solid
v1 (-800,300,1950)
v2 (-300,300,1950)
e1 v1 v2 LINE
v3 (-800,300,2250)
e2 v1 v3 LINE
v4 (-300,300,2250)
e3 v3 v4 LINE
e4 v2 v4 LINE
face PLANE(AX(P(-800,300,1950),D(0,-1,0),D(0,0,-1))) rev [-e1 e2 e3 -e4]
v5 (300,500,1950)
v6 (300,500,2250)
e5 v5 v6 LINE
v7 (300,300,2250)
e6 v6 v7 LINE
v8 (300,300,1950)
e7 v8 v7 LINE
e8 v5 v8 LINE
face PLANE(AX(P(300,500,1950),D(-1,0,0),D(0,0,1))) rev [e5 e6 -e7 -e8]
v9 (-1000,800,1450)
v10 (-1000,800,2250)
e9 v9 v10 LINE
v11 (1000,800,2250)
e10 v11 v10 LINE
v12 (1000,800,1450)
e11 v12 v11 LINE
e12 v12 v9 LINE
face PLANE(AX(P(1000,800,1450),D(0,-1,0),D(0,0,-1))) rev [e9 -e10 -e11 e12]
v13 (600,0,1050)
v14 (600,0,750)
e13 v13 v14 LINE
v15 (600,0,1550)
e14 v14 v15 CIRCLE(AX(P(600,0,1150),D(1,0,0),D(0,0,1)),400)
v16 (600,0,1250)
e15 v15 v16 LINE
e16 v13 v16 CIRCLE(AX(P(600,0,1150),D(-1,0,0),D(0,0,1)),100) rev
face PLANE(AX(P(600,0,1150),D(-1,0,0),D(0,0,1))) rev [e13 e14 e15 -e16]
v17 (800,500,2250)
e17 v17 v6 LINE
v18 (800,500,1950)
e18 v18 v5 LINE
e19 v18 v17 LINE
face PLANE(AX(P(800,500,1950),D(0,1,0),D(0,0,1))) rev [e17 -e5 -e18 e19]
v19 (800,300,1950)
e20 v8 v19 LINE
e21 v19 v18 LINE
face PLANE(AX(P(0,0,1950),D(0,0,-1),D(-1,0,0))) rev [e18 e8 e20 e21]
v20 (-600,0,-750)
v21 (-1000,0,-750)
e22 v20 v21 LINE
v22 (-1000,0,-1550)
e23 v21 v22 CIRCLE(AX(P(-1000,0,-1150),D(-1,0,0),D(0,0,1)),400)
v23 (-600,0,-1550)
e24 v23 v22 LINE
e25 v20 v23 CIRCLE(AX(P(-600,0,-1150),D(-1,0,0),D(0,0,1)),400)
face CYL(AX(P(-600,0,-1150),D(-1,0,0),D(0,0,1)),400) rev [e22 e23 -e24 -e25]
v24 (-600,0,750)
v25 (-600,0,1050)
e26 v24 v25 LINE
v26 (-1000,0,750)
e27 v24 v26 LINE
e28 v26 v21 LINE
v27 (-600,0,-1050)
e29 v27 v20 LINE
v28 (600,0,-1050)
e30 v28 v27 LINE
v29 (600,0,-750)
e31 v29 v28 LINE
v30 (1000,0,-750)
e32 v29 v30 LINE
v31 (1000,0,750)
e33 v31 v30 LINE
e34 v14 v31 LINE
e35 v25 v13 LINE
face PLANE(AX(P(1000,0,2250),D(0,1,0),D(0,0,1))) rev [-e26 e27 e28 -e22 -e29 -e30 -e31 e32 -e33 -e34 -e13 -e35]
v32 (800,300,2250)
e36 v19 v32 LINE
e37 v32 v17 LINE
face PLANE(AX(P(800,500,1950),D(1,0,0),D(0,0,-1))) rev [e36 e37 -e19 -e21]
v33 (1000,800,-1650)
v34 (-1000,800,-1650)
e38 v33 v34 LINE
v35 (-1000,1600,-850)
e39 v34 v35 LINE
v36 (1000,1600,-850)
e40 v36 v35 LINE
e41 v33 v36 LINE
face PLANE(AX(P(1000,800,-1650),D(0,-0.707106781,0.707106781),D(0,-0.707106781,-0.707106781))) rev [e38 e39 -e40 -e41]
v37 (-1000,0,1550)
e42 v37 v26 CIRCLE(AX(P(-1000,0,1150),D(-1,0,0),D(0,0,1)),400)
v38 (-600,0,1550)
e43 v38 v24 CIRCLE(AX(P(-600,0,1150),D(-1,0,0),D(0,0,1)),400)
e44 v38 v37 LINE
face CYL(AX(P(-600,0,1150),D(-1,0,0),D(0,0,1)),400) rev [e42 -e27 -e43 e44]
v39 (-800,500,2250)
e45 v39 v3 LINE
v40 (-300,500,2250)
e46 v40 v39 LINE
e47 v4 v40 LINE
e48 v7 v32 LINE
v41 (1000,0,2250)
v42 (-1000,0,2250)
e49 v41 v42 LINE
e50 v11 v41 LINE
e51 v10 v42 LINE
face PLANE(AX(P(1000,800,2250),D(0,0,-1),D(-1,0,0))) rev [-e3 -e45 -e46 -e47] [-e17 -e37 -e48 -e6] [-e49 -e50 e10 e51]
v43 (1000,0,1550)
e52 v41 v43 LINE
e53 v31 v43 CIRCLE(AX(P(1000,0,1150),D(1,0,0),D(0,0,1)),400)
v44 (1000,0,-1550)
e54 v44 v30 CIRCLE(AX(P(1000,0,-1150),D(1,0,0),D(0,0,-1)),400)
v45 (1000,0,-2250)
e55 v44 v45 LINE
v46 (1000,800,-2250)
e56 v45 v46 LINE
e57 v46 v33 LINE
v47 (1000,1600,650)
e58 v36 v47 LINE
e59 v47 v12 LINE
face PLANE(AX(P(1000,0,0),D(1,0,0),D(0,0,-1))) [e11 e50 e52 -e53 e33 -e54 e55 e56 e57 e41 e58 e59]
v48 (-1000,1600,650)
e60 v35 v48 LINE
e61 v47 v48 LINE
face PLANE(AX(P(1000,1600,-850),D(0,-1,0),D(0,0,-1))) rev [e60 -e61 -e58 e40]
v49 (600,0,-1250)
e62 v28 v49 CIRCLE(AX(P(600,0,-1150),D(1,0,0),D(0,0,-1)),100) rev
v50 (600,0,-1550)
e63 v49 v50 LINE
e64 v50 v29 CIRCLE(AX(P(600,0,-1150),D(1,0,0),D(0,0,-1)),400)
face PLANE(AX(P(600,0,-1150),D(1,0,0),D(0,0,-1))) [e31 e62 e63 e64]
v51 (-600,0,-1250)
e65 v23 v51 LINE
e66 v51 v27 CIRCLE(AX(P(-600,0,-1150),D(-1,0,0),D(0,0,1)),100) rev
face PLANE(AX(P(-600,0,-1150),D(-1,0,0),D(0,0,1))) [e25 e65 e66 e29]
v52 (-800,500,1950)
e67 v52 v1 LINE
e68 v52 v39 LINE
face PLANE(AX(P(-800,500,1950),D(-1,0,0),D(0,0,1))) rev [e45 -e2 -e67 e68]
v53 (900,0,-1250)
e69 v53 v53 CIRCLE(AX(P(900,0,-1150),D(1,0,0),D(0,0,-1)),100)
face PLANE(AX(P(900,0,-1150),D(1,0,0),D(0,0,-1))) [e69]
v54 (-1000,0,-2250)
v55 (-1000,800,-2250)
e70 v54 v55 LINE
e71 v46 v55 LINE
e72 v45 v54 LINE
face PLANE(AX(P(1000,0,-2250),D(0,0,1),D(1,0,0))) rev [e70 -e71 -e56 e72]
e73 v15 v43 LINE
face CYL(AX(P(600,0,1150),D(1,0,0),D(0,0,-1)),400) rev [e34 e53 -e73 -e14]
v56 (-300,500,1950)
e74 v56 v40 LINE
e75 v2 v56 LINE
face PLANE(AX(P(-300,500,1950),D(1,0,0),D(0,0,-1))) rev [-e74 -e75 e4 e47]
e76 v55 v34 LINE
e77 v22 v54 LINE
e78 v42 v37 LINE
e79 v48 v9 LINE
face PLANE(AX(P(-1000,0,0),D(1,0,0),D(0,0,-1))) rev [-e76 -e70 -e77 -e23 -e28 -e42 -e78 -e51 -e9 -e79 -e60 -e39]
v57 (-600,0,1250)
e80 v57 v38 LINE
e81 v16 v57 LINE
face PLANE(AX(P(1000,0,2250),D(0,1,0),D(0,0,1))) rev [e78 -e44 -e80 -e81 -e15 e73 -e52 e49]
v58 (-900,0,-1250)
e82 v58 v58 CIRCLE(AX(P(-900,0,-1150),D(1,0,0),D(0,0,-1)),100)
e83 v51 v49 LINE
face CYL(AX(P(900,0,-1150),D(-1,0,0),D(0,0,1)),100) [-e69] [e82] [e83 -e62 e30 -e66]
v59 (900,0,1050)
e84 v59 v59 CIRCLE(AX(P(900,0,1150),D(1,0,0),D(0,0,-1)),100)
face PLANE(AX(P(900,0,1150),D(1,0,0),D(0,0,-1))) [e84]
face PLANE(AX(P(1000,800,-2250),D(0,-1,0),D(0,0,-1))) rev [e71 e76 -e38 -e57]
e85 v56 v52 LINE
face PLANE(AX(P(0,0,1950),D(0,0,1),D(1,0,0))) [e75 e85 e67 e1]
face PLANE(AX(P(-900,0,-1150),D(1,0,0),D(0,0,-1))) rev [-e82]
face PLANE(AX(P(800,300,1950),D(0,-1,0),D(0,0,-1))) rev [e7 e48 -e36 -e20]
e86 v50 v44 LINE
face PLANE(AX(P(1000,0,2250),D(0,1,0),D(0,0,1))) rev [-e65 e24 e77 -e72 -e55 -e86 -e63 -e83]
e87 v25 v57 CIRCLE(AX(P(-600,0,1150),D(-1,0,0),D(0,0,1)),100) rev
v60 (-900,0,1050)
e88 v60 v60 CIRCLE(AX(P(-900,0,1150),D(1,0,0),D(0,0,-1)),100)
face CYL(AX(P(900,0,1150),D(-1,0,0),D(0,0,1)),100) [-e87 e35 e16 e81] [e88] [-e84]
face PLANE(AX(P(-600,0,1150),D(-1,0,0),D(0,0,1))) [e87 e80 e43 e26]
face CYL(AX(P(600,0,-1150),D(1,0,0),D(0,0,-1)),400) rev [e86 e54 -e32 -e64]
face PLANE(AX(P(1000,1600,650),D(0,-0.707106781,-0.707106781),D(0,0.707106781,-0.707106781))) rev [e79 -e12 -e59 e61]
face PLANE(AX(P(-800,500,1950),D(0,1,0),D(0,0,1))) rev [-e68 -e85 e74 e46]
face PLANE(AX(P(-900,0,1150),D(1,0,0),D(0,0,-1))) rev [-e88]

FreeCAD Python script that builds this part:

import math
import FreeCAD as App
import Part
import Sketcher

doc = App.newDocument("Part")
body = doc.addObject("PartDesign::Body", "Body")

# Sketch on YZ plane
sketch1 = body.newObject("Sketcher::SketchObject", "Sketch")
sketch1.AttachmentSupport = (doc.getObject("YZ_Plane"), [""])
sketch1.MapMode = "FlatFace"
sketch1.addGeometry([
    Part.LineSegment(App.Vector(0, -2250, 0), App.Vector(800, -2250, 0)),  # 0
    Part.LineSegment(App.Vector(800, -2250, 0), App.Vector(800, -1650, 0)),  # 1
    Part.LineSegment(App.Vector(800, -1650, 0), App.Vector(1600, -850, 0)),  # 2
    Part.LineSegment(App.Vector(1600, -850, 0), App.Vector(1600, 650, 0)),  # 3
    Part.LineSegment(App.Vector(1600, 650, 0), App.Vector(800, 1450, 0)),  # 4
    Part.LineSegment(App.Vector(800, 1450, 0), App.Vector(800, 2250, 0)),  # 5
    Part.LineSegment(App.Vector(800, 2250, 0), App.Vector(0, 2250, 0)),  # 6
    Part.LineSegment(App.Vector(0, 2250, 0), App.Vector(0, -2250, 0)),  # 7
], False)
sketch1.addConstraint([
    Sketcher.Constraint("Coincident", 0, 2, 1, 1),
    Sketcher.Constraint("Coincident", 1, 2, 2, 1),
    Sketcher.Constraint("Coincident", 2, 2, 3, 1),
    Sketcher.Constraint("Coincident", 3, 2, 4, 1),
    Sketcher.Constraint("Coincident", 4, 2, 5, 1),
    Sketcher.Constraint("Coincident", 5, 2, 6, 1),
    Sketcher.Constraint("Coincident", 6, 2, 7, 1),
    Sketcher.Constraint("Coincident", 7, 2, 0, 1),
    Sketcher.Constraint("Horizontal", 0),
    Sketcher.Constraint("Vertical", 1),
    Sketcher.Constraint("Vertical", 3),
    Sketcher.Constraint("Vertical", 5),
    Sketcher.Constraint("Horizontal", 6),
    Sketcher.Constraint("Vertical", 7),
    Sketcher.Constraint("Symmetric", 6, 2, 7, 2, -1, 1),
    Sketcher.Constraint("Perpendicular", 2, 4),
    Sketcher.Constraint("Vertical", 1, 2, 4, 2),
    Sketcher.Constraint("Equal", 6, 5),
    Sketcher.Constraint("Equal", 2, 4),
    Sketcher.Constraint("DistanceX", 0, 1, 0, 2, 800.0),
    Sketcher.Constraint("DistanceY", 1, 1, 1, 2, 600.0),
    Sketcher.Constraint("DistanceY", 3, 1, 3, 2, 1500.0),
    Sketcher.Constraint("DistanceY", 7, 2, 7, 1, 4500.0),
])
pad1 = body.newObject("PartDesign::Pad", "Pad")
pad1.Profile = sketch1
pad1.Length = 2000
pad1.Midplane = True

# Sketch on YZ plane
sketch2 = body.newObject("Sketcher::SketchObject", "Sketch001")
sketch2.AttachmentSupport = (doc.getObject("YZ_Plane"), [""])
sketch2.MapMode = "FlatFace"
sketch2.AttachmentOffset = App.Placement(App.Vector(0, 0, 1000), App.Rotation())
sketch2.addGeometry([
    Part.LineSegment(App.Vector(0, 1550, 0), App.Vector(0, 750, 0)),
    Part.ArcOfCircle(Part.Circle(App.Vector(0, 1150, 0), App.Vector(0, 0, 1), 400), math.radians(-90), math.radians(90)),
    Part.LineSegment(App.Vector(0, -750, 0), App.Vector(0, -1550, 0)),
    Part.ArcOfCircle(Part.Circle(App.Vector(0, -1150, 0), App.Vector(0, 0, 1), 400), math.radians(-90), math.radians(90)),
], False)
sketch2.addConstraint([
    Sketcher.Constraint("Coincident", 0, 1, 1, 2),
    Sketcher.Constraint("Coincident", 1, 1, 0, 2),
    Sketcher.Constraint("Coincident", 2, 1, 3, 2),
    Sketcher.Constraint("Coincident", 3, 1, 2, 2),
    Sketcher.Constraint("Vertical", 0),
    Sketcher.Constraint("Vertical", 2),
    Sketcher.Constraint("Equal", 1, 3),
    Sketcher.Constraint("Symmetric", 1, 3, 3, 3, -1, 1),
    Sketcher.Constraint("PointOnObject", 1, 3, -2),
    Sketcher.Constraint("PointOnObject", 0, 1, -2),
    Sketcher.Constraint("PointOnObject", 2, 1, -2),
    Sketcher.Constraint("Radius", 1, 400.0),
    Sketcher.Constraint("DistanceY", -1, 1, 1, 3, 1150.0),
])
pocket1 = body.newObject("PartDesign::Pocket", "Pocket")
pocket1.Profile = sketch2
pocket1.Length = 400

# Sketch on YZ plane
sketch3 = body.newObject("Sketcher::SketchObject", "Sketch002")
sketch3.AttachmentSupport = (doc.getObject("YZ_Plane"), [""])
sketch3.MapMode = "FlatFace"
sketch3.AttachmentOffset = App.Placement(App.Vector(0, 0, -600), App.Rotation())
sketch3.addGeometry([
    Part.LineSegment(App.Vector(0, -1550, 0), App.Vector(0, -750, 0)),
    Part.ArcOfCircle(Part.Circle(App.Vector(0, -1150, 0), App.Vector(0, 0, 1), 400), math.radians(-90), math.radians(90)),
    Part.LineSegment(App.Vector(0, 750, 0), App.Vector(0, 1550, 0)),
    Part.ArcOfCircle(Part.Circle(App.Vector(0, 1150, 0), App.Vector(0, 0, 1), 400), math.radians(-90), math.radians(90)),
], False)
sketch3.addConstraint([
    Sketcher.Constraint("Coincident", 0, 1, 1, 1),
    Sketcher.Constraint("Coincident", 1, 2, 0, 2),
    Sketcher.Constraint("Coincident", 2, 1, 3, 1),
    Sketcher.Constraint("Coincident", 3, 2, 2, 2),
    Sketcher.Constraint("Vertical", 0),
    Sketcher.Constraint("Vertical", 2),
    Sketcher.Constraint("Equal", 1, 3),
    Sketcher.Constraint("Symmetric", 1, 3, 3, 3, -1, 1),
    Sketcher.Constraint("PointOnObject", 1, 3, -2),
    Sketcher.Constraint("PointOnObject", 0, 1, -2),
    Sketcher.Constraint("PointOnObject", 2, 1, -2),
    Sketcher.Constraint("Radius", 1, 400.0),
    Sketcher.Constraint("DistanceY", 1, 3, -1, 1, 1150.0),
])
pocket2 = body.newObject("PartDesign::Pocket", "Pocket001")
pocket2.Profile = sketch3
pocket2.Length = 400

# Sketch on YZ plane
sketch4 = body.newObject("Sketcher::SketchObject", "Sketch003")
sketch4.AttachmentSupport = (doc.getObject("YZ_Plane"), [""])
sketch4.MapMode = "FlatFace"
sketch4.addGeometry([
    Part.Circle(App.Vector(0, 1150, 0), App.Vector(0, 0, 1), 100),
    Part.Circle(App.Vector(0, -1150, 0), App.Vector(0, 0, 1), 100),
], False)
sketch4.addConstraint([
    Sketcher.Constraint("Equal", 0, 1),
    Sketcher.Constraint("Symmetric", 0, 3, 1, 3, -1, 1),
    Sketcher.Constraint("PointOnObject", 0, 3, -2),
    Sketcher.Constraint("Diameter", 0, 200.0),
    Sketcher.Constraint("DistanceY", -1, 1, 0, 3, 1150.0),
])
pad2 = body.newObject("PartDesign::Pad", "Pad001")
pad2.Profile = sketch4
pad2.Length = 1800
pad2.Midplane = True

# Sketch on XY plane
sketch5 = body.newObject("Sketcher::SketchObject", "Sketch004")
sketch5.AttachmentSupport = (doc.getObject("XY_Plane"), [""])
sketch5.MapMode = "FlatFace"
sketch5.AttachmentOffset = App.Placement(App.Vector(0, 0, 2250), App.Rotation())
sketch5.addGeometry([
    Part.LineSegment(App.Vector(-800, 500, 0), App.Vector(-800, 300, 0)),  # 0
    Part.LineSegment(App.Vector(-800, 300, 0), App.Vector(-300, 300, 0)),  # 1
    Part.LineSegment(App.Vector(-300, 300, 0), App.Vector(-300, 500, 0)),  # 2
    Part.LineSegment(App.Vector(-300, 500, 0), App.Vector(-800, 500, 0)),  # 3
    Part.LineSegment(App.Vector(300, 500, 0), App.Vector(300, 300, 0)),  # 4
    Part.LineSegment(App.Vector(300, 300, 0), App.Vector(800, 300, 0)),  # 5
    Part.LineSegment(App.Vector(800, 300, 0), App.Vector(800, 500, 0)),  # 6
    Part.LineSegment(App.Vector(800, 500, 0), App.Vector(300, 500, 0)),  # 7
], False)
sketch5.addConstraint([
    Sketcher.Constraint("Coincident", 0, 2, 1, 1),
    Sketcher.Constraint("Coincident", 1, 2, 2, 1),
    Sketcher.Constraint("Coincident", 2, 2, 3, 1),
    Sketcher.Constraint("Coincident", 3, 2, 0, 1),
    Sketcher.Constraint("Coincident", 4, 2, 5, 1),
    Sketcher.Constraint("Coincident", 5, 2, 6, 1),
    Sketcher.Constraint("Coincident", 6, 2, 7, 1),
    Sketcher.Constraint("Coincident", 7, 2, 4, 1),
    Sketcher.Constraint("Vertical", 0),
    Sketcher.Constraint("Horizontal", 1),
    Sketcher.Constraint("Vertical", 2),
    Sketcher.Constraint("Horizontal", 3),
    Sketcher.Constraint("Vertical", 4),
    Sketcher.Constraint("Horizontal", 5),
    Sketcher.Constraint("Vertical", 6),
    Sketcher.Constraint("Horizontal", 7),
    Sketcher.Constraint("Symmetric", 1, 2, 4, 2, -2),
    Sketcher.Constraint("Symmetric", 3, 2, 6, 2, -2),
    Sketcher.Constraint("DistanceX", 1, 1, 1, 2, 500.0),
    Sketcher.Constraint("DistanceY", 0, 2, 0, 1, 200.0),
    Sketcher.Constraint("DistanceX", 0, 2, -1, 1, 800.0),
    Sketcher.Constraint("DistanceY", -1, 1, 0, 2, 300.0),
])
pocket3 = body.newObject("PartDesign::Pocket", "Pocket002")
pocket3.Profile = sketch5
pocket3.Length = 300

doc.recompute()
